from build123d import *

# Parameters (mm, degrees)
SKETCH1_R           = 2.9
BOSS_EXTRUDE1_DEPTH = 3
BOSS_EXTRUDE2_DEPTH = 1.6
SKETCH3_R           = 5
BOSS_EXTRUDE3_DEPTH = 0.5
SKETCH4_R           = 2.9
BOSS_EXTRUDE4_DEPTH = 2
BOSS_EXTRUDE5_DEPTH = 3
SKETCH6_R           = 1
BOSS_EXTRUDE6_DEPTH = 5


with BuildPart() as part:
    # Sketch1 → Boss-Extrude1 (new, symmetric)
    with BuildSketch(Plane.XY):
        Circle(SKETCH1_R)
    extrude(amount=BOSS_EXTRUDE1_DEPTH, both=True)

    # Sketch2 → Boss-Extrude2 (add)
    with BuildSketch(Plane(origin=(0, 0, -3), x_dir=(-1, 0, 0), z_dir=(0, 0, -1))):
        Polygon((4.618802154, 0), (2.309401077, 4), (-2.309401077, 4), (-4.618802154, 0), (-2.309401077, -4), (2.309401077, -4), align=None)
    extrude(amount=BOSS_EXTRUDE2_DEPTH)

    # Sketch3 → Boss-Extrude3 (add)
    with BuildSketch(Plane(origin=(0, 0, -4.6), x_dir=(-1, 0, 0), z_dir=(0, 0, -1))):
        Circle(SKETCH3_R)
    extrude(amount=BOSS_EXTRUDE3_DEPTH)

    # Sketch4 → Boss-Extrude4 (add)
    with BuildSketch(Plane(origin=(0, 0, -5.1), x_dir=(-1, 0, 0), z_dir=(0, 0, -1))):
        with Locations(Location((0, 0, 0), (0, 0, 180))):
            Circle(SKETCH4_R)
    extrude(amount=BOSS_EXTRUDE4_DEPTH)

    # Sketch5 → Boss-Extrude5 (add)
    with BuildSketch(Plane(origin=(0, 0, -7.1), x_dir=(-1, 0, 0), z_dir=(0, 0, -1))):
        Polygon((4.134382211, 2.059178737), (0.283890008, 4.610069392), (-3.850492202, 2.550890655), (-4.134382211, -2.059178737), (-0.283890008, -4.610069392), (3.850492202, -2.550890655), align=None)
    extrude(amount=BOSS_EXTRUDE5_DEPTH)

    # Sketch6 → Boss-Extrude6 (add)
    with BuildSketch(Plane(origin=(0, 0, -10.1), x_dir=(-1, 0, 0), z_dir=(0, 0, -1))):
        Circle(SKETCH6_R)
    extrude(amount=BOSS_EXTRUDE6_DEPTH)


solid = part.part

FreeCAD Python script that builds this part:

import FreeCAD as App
import Part
import Sketcher

V = App.Vector
Q = App.Units.Quantity


def add_polygon(sketch, points):
    """Adds a closed chain of lines whose ends are joined by coincident constraints."""
    first, n = sketch.GeometryCount, len(points)
    for a, b in zip(points, points[1:] + points[:1]):
        sketch.addGeometry(Part.LineSegment(App.Vector(*a, 0), App.Vector(*b, 0)), False)
    for i in range(n):
        sketch.addConstraint(Sketcher.Constraint("Coincident", first + i, 2, first + (i + 1) % n, 1))

doc = App.newDocument("Part")
body = doc.addObject("PartDesign::Body", "Body")

sketch1 = body.newObject("Sketcher::SketchObject", "Sketch")
sketch1.AttachmentSupport = (doc.getObject("XY_Plane"), [""])
sketch1.MapMode = "FlatFace"
sketch1.addGeometry(Part.Circle(V(0, 0, 0), V(0, 0, 1), 2.9), False)
sketch1.addConstraint(Sketcher.Constraint("Coincident", 0, 3, -1, 1))
sketch1.addConstraint(Sketcher.Constraint("Diameter", 0, 5.8))
pad1 = body.newObject("PartDesign::Pad", "Pad")
pad1.Profile = sketch1
pad1.Length = 6
pad1.Midplane = True

sketch2 = body.newObject("Sketcher::SketchObject", "Sketch001")
sketch2.AttachmentSupport = (doc.getObject("XY_Plane"), [""])
sketch2.MapMode = "FlatFace"
sketch2.AttachmentOffset = App.Placement(V(0, 0, -3), App.Rotation())
add_polygon(sketch2, [(-4.6, 0), (-2.3, 4), (2.3, 4), (4.6, 0), (2.3, -4), (-2.3, -4)])
sketch2.addConstraint(Sketcher.Constraint("Horizontal", 1))
sketch2.addConstraint(Sketcher.Constraint("Horizontal", 4))
sketch2.addConstraint(Sketcher.Constraint("Symmetric", 0, 2, 3, 2, -1, 1))
sketch2.addConstraint(Sketcher.Constraint("Symmetric", 2, 2, 5, 2, -1, 1))
sketch2.addConstraint(Sketcher.Constraint("PointOnObject", 2, 2, -1))
sketch2.addConstraint(Sketcher.Constraint("Parallel", 2, 5))
sketch2.addConstraint(Sketcher.Constraint("Vertical", 1, 2, 3, 2))
sketch2.addConstraint(Sketcher.Constraint("Angle", 0, Q("60 deg")))
sketch2.addConstraint(Sketcher.Constraint("DistanceY", -1, 1, 0, 2, 4.0))
sketch2.addConstraint(Sketcher.Constraint("DistanceX", 0, 2, -1, 1, 2.309401))
pad2 = body.newObject("PartDesign::Pad", "Pad001")
pad2.Profile = sketch2
pad2.Length = 1.6
pad2.Reversed = True

sketch3 = body.newObject("Sketcher::SketchObject", "Sketch002")
sketch3.AttachmentSupport = (doc.getObject("XY_Plane"), [""])
sketch3.MapMode = "FlatFace"
sketch3.AttachmentOffset = App.Placement(V(0, 0, -4.6), App.Rotation())
sketch3.addGeometry(Part.Circle(V(0, 0, 0), V(0, 0, 1), 5), False)
sketch3.addConstraint(Sketcher.Constraint("Coincident", 0, 3, -1, 1))
sketch3.addConstraint(Sketcher.Constraint("Diameter", 0, 10.0))
pad3 = body.newObject("PartDesign::Pad", "Pad002")
pad3.Profile = sketch3
pad3.Length = 0.5
pad3.Reversed = True

sketch4 = body.newObject("Sketcher::SketchObject", "Sketch003")
sketch4.AttachmentSupport = (doc.getObject("XY_Plane"), [""])
sketch4.MapMode = "FlatFace"
sketch4.AttachmentOffset = App.Placement(V(0, 0, -5.1), App.Rotation())
sketch4.addGeometry(Part.Circle(V(0, 0, 0), V(0, 0, 1), 2.9), False)
sketch4.addConstraint(Sketcher.Constraint("Coincident", 0, 3, -1, 1))
sketch4.addConstraint(Sketcher.Constraint("Diameter", 0, 5.8))
pad4 = body.newObject("PartDesign::Pad", "Pad003")
pad4.Profile = sketch4
pad4.Length = 2
pad4.Reversed = True

sketch5 = body.newObject("Sketcher::SketchObject", "Sketch004")
sketch5.AttachmentSupport = (doc.getObject("XY_Plane"), [""])
sketch5.MapMode = "FlatFace"
sketch5.AttachmentOffset = App.Placement(V(0, 0, -7.1), App.Rotation())
add_polygon(sketch5, [(-4.1, 2.1), (-0.3, 4.6), (3.9, 2.6), (4.1, -2.1), (0.3, -4.6), (-3.9, -2.6)])
sketch5.addConstraint(Sketcher.Constraint("Symmetric", 0, 2, 3, 2, -1, 1))
sketch5.addConstraint(Sketcher.Constraint("Symmetric", 1, 2, 4, 2, -1, 1))
sketch5.addConstraint(Sketcher.Constraint("Symmetric", 2, 2, 5, 2, -1, 1))
sketch5.addConstraint(Sketcher.Constraint("Equal", 0, 1))
sketch5.addConstraint(Sketcher.Constraint("Equal", 1, 2))
sketch5.addConstraint(Sketcher.Constraint("DistanceX", 0, 2, -1, 1, 0.28389))
sketch5.addConstraint(Sketcher.Constraint("DistanceY", -1, 1, 0, 2, 4.610069))
sketch5.addConstraint(Sketcher.Constraint("DistanceY", -1, 1, 1, 2, 2.550891))
sketch5.addConstraint(Sketcher.Constraint("DistanceY", 2, 2, -1, 1, 2.059179))
pad5 = body.newObject("PartDesign::Pad", "Pad004")
pad5.Profile = sketch5
pad5.Length = 3
pad5.Reversed = True

sketch6 = body.newObject("Sketcher::SketchObject", "Sketch005")
sketch6.AttachmentSupport = (doc.getObject("XY_Plane"), [""])
sketch6.MapMode = "FlatFace"
sketch6.AttachmentOffset = App.Placement(V(0, 0, -10.1), App.Rotation())
sketch6.addGeometry(Part.Circle(V(0, 0, 0), V(0, 0, 1), 1), False)
sketch6.addConstraint(Sketcher.Constraint("Coincident", 0, 3, -1, 1))
sketch6.addConstraint(Sketcher.Constraint("Diameter", 0, 2.0))
pad6 = body.newObject("PartDesign::Pad", "Pad005")
pad6.Profile = sketch6
pad6.Length = 5
pad6.Reversed = True

doc.recompute()
